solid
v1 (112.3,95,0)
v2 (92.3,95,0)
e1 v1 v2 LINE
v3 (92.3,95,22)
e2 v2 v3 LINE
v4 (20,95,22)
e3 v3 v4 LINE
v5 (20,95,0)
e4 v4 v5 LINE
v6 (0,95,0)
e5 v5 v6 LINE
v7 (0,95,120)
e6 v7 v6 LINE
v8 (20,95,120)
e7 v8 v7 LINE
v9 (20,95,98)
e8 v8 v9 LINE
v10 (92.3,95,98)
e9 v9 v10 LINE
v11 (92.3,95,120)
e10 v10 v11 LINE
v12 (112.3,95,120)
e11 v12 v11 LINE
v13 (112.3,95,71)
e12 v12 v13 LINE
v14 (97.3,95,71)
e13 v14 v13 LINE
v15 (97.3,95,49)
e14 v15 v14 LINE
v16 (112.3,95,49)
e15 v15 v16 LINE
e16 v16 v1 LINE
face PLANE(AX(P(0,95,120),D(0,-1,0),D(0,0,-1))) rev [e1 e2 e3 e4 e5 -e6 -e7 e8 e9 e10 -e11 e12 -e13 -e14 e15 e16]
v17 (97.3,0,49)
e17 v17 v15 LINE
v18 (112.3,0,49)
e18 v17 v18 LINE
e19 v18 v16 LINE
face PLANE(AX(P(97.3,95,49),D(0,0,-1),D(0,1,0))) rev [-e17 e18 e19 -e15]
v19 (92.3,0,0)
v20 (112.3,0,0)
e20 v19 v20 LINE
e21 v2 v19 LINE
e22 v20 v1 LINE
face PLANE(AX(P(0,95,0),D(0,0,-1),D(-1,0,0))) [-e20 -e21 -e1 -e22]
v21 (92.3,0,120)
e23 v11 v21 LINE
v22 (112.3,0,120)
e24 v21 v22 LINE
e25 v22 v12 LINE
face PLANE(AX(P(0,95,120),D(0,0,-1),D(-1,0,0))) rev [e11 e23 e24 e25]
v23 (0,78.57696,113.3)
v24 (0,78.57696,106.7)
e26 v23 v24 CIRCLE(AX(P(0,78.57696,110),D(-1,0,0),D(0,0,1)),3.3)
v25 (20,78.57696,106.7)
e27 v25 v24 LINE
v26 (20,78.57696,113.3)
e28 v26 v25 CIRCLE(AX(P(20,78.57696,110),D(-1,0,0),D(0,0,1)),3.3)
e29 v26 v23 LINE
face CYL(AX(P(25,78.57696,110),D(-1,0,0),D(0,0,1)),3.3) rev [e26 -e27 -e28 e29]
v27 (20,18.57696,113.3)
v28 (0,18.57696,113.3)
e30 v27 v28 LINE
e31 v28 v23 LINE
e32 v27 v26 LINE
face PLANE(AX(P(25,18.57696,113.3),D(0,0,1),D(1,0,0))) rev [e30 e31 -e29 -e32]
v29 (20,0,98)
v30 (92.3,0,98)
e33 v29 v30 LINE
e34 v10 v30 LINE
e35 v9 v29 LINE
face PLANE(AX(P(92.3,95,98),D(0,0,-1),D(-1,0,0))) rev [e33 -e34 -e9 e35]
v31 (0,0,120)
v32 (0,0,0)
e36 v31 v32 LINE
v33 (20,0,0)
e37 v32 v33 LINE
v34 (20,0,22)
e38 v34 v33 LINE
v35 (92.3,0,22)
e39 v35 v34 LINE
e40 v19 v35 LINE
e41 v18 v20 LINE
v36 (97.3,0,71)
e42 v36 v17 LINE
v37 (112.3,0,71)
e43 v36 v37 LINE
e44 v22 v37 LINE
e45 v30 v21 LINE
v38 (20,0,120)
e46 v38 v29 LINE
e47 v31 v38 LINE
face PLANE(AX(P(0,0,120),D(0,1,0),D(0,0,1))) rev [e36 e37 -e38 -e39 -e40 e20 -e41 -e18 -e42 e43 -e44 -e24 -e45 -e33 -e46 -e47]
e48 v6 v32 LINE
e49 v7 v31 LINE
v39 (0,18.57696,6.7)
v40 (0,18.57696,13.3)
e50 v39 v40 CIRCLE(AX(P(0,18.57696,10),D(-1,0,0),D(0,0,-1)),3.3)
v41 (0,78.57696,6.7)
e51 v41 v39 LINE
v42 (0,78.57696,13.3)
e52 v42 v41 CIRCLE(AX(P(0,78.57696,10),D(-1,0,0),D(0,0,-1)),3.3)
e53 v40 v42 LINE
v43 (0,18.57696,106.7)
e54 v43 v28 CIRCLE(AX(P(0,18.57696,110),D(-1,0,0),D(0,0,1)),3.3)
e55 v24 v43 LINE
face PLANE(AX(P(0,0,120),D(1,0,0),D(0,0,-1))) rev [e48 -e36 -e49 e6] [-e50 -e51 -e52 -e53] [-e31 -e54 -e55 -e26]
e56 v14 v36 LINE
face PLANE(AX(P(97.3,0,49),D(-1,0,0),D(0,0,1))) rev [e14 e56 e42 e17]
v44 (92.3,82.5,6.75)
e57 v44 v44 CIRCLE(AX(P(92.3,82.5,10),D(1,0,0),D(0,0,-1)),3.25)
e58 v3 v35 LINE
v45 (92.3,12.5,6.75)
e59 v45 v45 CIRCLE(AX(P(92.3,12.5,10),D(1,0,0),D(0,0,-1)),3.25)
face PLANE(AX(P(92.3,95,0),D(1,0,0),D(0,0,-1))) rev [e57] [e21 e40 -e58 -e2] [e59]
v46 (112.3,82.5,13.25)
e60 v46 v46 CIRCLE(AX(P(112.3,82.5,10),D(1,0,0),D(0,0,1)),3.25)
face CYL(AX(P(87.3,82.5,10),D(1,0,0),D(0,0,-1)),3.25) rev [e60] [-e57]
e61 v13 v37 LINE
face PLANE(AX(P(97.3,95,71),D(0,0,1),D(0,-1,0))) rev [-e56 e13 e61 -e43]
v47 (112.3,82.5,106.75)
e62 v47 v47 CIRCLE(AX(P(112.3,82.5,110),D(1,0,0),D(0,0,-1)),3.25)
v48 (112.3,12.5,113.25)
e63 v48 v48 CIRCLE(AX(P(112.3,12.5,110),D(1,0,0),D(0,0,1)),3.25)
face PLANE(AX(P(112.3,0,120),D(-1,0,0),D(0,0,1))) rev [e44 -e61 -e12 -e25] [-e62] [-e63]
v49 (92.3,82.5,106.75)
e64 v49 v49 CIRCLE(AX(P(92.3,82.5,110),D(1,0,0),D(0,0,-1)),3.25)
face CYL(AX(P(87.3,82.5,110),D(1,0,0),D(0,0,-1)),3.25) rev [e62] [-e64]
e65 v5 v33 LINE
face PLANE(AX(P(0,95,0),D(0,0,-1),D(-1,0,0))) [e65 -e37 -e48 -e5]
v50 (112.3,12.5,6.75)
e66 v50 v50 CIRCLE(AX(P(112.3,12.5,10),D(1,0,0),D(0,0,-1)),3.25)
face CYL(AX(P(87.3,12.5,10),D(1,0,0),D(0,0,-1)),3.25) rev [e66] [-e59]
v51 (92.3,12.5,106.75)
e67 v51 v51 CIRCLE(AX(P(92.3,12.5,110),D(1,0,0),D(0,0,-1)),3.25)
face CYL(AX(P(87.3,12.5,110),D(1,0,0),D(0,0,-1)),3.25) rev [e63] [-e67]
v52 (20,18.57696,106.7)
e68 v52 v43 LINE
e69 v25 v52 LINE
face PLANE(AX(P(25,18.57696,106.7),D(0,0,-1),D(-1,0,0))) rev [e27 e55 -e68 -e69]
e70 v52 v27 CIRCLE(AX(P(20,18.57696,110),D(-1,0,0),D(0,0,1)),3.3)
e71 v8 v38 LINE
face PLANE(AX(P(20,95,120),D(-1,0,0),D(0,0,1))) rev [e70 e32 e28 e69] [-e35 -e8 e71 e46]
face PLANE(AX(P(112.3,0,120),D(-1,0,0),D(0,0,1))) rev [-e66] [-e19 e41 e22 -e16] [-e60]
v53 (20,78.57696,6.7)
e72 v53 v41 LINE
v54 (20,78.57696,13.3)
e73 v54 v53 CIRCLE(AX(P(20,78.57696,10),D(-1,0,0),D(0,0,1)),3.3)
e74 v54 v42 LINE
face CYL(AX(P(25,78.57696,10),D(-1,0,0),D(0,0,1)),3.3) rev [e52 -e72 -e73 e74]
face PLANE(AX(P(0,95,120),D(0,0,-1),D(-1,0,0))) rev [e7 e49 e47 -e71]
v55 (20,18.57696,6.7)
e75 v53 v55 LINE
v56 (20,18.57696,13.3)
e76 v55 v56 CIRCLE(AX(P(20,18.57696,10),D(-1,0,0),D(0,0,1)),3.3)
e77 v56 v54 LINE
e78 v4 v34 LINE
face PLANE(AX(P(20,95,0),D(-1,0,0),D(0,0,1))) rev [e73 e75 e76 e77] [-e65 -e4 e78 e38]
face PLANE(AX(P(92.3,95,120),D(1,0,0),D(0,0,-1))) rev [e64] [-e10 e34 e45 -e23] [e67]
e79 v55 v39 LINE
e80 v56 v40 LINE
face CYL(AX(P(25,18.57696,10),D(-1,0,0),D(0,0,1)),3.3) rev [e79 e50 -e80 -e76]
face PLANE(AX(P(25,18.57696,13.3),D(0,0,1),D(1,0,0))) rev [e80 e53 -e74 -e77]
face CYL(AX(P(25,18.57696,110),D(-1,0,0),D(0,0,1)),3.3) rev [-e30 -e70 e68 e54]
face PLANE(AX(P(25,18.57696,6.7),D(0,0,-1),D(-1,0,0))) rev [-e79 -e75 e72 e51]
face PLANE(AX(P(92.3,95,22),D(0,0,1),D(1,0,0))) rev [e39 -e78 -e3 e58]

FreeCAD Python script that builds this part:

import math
import FreeCAD as App
import Part
import Sketcher
from FreeCAD import Vector
Q = App.Units.Quantity

doc = App.newDocument("Part")
params = doc.addObject("Spreadsheet::Sheet", "Params")
for row, (alias, value) in enumerate([
    ("sketch1_height", "95 mm"),
    ("sketch1_width", "112.3 mm"),
    ("pad1_length", "120 mm"),
    ("sketch2_height", "22 mm"),
    ("sketch2_width", "72.3 mm"),
    ("sketch3_radius", "3.3 mm"),
    ("sketch3_width", "60 mm"),
    ("pocket2_length", "25 mm"),
    ("sketch4_diameter", "6.5 mm"),
    ("pocket3_length", "25 mm"),
    ("sketch5_width", "95 mm"),
    ("sketch5_height", "22 mm"),
    ("pocket4_length", "15 mm"),
], start=1):
    params.set(f"A{row}", alias)
    params.set(f"B{row}", "=" + value)
    params.setAlias(f"B{row}", alias)

body = doc.addObject("PartDesign::Body", "Body")

# Sketch on XY plane
sketch1 = body.newObject("Sketcher::SketchObject", "Sketch")
sketch1.AttachmentSupport = (doc.getObject("XY_Plane"), [""])
sketch1.MapMode = "FlatFace"
sketch1.addGeometry(Part.LineSegment(Vector(0, 95, 0), Vector(0, 0, 0)), False)
sketch1.addGeometry(Part.LineSegment(Vector(0, 0, 0), Vector(112, 0, 0)), False)
sketch1.addGeometry(Part.LineSegment(Vector(112, 0, 0), Vector(112, 95, 0)), False)
sketch1.addGeometry(Part.LineSegment(Vector(112, 95, 0), Vector(0, 95, 0)), False)
sketch1.addConstraint(Sketcher.Constraint("Coincident", 0, 2, 1, 1))
sketch1.addConstraint(Sketcher.Constraint("Coincident", 1, 2, 2, 1))
sketch1.addConstraint(Sketcher.Constraint("Coincident", 2, 2, 3, 1))
sketch1.addConstraint(Sketcher.Constraint("Coincident", 3, 2, 0, 1))
sketch1.addConstraint(Sketcher.Constraint("Vertical", 0))
sketch1.addConstraint(Sketcher.Constraint("Horizontal", 1))
sketch1.addConstraint(Sketcher.Constraint("Vertical", 2))
sketch1.addConstraint(Sketcher.Constraint("Horizontal", 3))
sketch1.addConstraint(Sketcher.Constraint("Coincident", 0, 2, -1, 1))
sketch1.addConstraint(Sketcher.Constraint("DistanceY", 0, 2, 0, 1, Q("95 mm")))
sketch1.addConstraint(Sketcher.Constraint("DistanceX", 1, 1, 1, 2, Q("112.3 mm")))
sketch1.setExpression("Constraints[9]", "Params.sketch1_height")
sketch1.setExpression("Constraints[10]", "Params.sketch1_width")
pad1 = body.newObject("PartDesign::Pad", "Pad")
pad1.Profile = sketch1
pad1.setExpression("Length", "Params.pad1_length")

# Sketch on XZ plane
sketch2 = body.newObject("Sketcher::SketchObject", "Sketch001")
sketch2.AttachmentSupport = (doc.getObject("XZ_Plane"), [""])
sketch2.MapMode = "FlatFace"
sketch2.addGeometry(Part.LineSegment(Vector(20, 120, 0), Vector(20, 98, 0)), False)
sketch2.addGeometry(Part.LineSegment(Vector(20, 98, 0), Vector(92, 98, 0)), False)
sketch2.addGeometry(Part.LineSegment(Vector(92, 98, 0), Vector(92, 120, 0)), False)
sketch2.addGeometry(Part.LineSegment(Vector(92, 120, 0), Vector(20, 120, 0)), False)
sketch2.addGeometry(Part.LineSegment(Vector(20, 22, 0), Vector(20, 0, 0)), False)
sketch2.addGeometry(Part.LineSegment(Vector(20, 0, 0), Vector(92, 0, 0)), False)
sketch2.addGeometry(Part.LineSegment(Vector(92, 0, 0), Vector(92, 22, 0)), False)
sketch2.addGeometry(Part.LineSegment(Vector(92, 22, 0), Vector(20, 22, 0)), False)
sketch2.addConstraint(Sketcher.Constraint("Coincident", 0, 2, 1, 1))
sketch2.addConstraint(Sketcher.Constraint("Coincident", 1, 2, 2, 1))
sketch2.addConstraint(Sketcher.Constraint("Coincident", 2, 2, 3, 1))
sketch2.addConstraint(Sketcher.Constraint("Coincident", 3, 2, 0, 1))
sketch2.addConstraint(Sketcher.Constraint("Coincident", 4, 2, 5, 1))
sketch2.addConstraint(Sketcher.Constraint("Coincident", 5, 2, 6, 1))
sketch2.addConstraint(Sketcher.Constraint("Coincident", 6, 2, 7, 1))
sketch2.addConstraint(Sketcher.Constraint("Coincident", 7, 2, 4, 1))
sketch2.addConstraint(Sketcher.Constraint("Vertical", 0))
sketch2.addConstraint(Sketcher.Constraint("Horizontal", 1))
sketch2.addConstraint(Sketcher.Constraint("Vertical", 2))
sketch2.addConstraint(Sketcher.Constraint("Horizontal", 3))
sketch2.addConstraint(Sketcher.Constraint("Vertical", 4))
sketch2.addConstraint(Sketcher.Constraint("Horizontal", 5))
sketch2.addConstraint(Sketcher.Constraint("Vertical", 6))
sketch2.addConstraint(Sketcher.Constraint("Horizontal", 7))
sketch2.addConstraint(Sketcher.Constraint("PointOnObject", 4, 2, -1))
sketch2.addConstraint(Sketcher.Constraint("Vertical", 3, 2, 4, 2))
sketch2.addConstraint(Sketcher.Constraint("Vertical", 2, 2, 5, 2))
sketch2.addConstraint(Sketcher.Constraint("Equal", 2, 4))
sketch2.addConstraint(Sketcher.Constraint("DistanceY", 0, 2, 0, 1, Q("22 mm")))
sketch2.addConstraint(Sketcher.Constraint("DistanceX", 1, 1, 1, 2, Q("72.3 mm")))
sketch2.addConstraint(Sketcher.Constraint("DistanceX", -1, 1, 0, 2, Q("20 mm")))
sketch2.addConstraint(Sketcher.Constraint("DistanceY", -1, 1, 0, 2, Q("98 mm")))
sketch2.setExpression("Constraints[20]", "Params.sketch2_height")
sketch2.setExpression("Constraints[21]", "Params.sketch2_width")
pocket1 = body.newObject("PartDesign::Pocket", "Pocket")
pocket1.Profile = sketch2
pocket1.Type = "ThroughAll"

# Sketch on YZ plane
sketch3 = body.newObject("Sketcher::SketchObject", "Sketch002")
sketch3.AttachmentSupport = (doc.getObject("YZ_Plane"), [""])
sketch3.MapMode = "FlatFace"
sketch3.addGeometry(Part.LineSegment(Vector(78.6, 106.7, 0), Vector(18.6, 106.7, 0)), False)
sketch3.addGeometry(Part.ArcOfCircle(Part.Circle(Vector(18.6, 110, 0), Vector(0, 0, 1), 3.3), math.radians(90), math.radians(270)), False)
sketch3.addGeometry(Part.LineSegment(Vector(18.6, 113.3, 0), Vector(78.6, 113.3, 0)), False)
sketch3.addGeometry(Part.ArcOfCircle(Part.Circle(Vector(78.6, 110, 0), Vector(0, 0, 1), 3.3), math.radians(-90), math.radians(90)), False)
sketch3.addGeometry(Part.LineSegment(Vector(18.6, 13.3, 0), Vector(78.6, 13.3, 0)), False)
sketch3.addGeometry(Part.ArcOfCircle(Part.Circle(Vector(78.6, 10, 0), Vector(0, 0, 1), 3.3), math.radians(-90), math.radians(90)), False)
sketch3.addGeometry(Part.LineSegment(Vector(78.6, 6.7, 0), Vector(18.6, 6.7, 0)), False)
sketch3.addGeometry(Part.ArcOfCircle(Part.Circle(Vector(18.6, 10, 0), Vector(0, 0, 1), 3.3), math.radians(90), math.radians(270)), False)
sketch3.addConstraint(Sketcher.Constraint("Tangent", 0, 2, 1, 2))
sketch3.addConstraint(Sketcher.Constraint("Tangent", 1, 1, 2, 1))
sketch3.addConstraint(Sketcher.Constraint("Tangent", 2, 2, 3, 2))
sketch3.addConstraint(Sketcher.Constraint("Tangent", 3, 1, 0, 1))
sketch3.addConstraint(Sketcher.Constraint("Tangent", 4, 2, 5, 2))
sketch3.addConstraint(Sketcher.Constraint("Tangent", 5, 1, 6, 1))
sketch3.addConstraint(Sketcher.Constraint("Tangent", 6, 2, 7, 2))
sketch3.addConstraint(Sketcher.Constraint("Tangent", 7, 1, 4, 1))
sketch3.addConstraint(Sketcher.Constraint("Horizontal", 0))
sketch3.addConstraint(Sketcher.Constraint("Horizontal", 2))
sketch3.addConstraint(Sketcher.Constraint("Horizontal", 4))
sketch3.addConstraint(Sketcher.Constraint("Horizontal", 6))
sketch3.addConstraint(Sketcher.Constraint("Equal", 3, 5))
sketch3.addConstraint(Sketcher.Constraint("Vertical", 3, 3, 5, 3))
sketch3.addConstraint(Sketcher.Constraint("Vertical", 1, 3, 7, 3))
sketch3.addConstraint(Sketcher.Constraint("Radius", 1, Q("3.3 mm")))
sketch3.addConstraint(Sketcher.Constraint("DistanceX", 0, 2, 0, 1, Q("60 mm")))
sketch3.addConstraint(Sketcher.Constraint("DistanceY", -1, 1, 1, 3, Q("110 mm")))
sketch3.addConstraint(Sketcher.Constraint("DistanceY", -1, 1, 5, 3, Q("10 mm")))
sketch3.addConstraint(Sketcher.Constraint("DistanceX", -1, 1, 1, 3, Q("18.57696 mm")))
sketch3.setExpression("Constraints[15]", "Params.sketch3_radius")
sketch3.setExpression("Constraints[16]", "Params.sketch3_width")
pocket2 = body.newObject("PartDesign::Pocket", "Pocket001")
pocket2.Profile = sketch3
pocket2.setExpression("Length", "Params.pocket2_length")
pocket2.Reversed = True

# Sketch on YZ plane
sketch4 = body.newObject("Sketcher::SketchObject", "Sketch003")
sketch4.AttachmentSupport = (doc.getObject("YZ_Plane"), [""])
sketch4.MapMode = "FlatFace"
sketch4.AttachmentOffset = App.Placement(Vector(0, 0, 112.3), App.Rotation())
sketch4.addGeometry(Part.Circle(Vector(82.5, 110, 0), Vector(0, 0, 1), 3.2), False)
sketch4.addGeometry(Part.Circle(Vector(82.5, 10, 0), Vector(0, 0, 1), 3.2), False)
sketch4.addGeometry(Part.Circle(Vector(12.5, 10, 0), Vector(0, 0, 1), 3.2), False)
sketch4.addGeometry(Part.Circle(Vector(12.5, 110, 0), Vector(0, 0, 1), 3.2), False)
sketch4.addConstraint(Sketcher.Constraint("Equal", 0, 1))
sketch4.addConstraint(Sketcher.Constraint("Equal", 1, 2))
sketch4.addConstraint(Sketcher.Constraint("Equal", 2, 3))
sketch4.addConstraint(Sketcher.Constraint("Horizontal", 1, 3, 2, 3))
sketch4.addConstraint(Sketcher.Constraint("Horizontal", 0, 3, 3, 3))
sketch4.addConstraint(Sketcher.Constraint("Vertical", 0, 3, 1, 3))
sketch4.addConstraint(Sketcher.Constraint("Vertical", 2, 3, 3, 3))
sketch4.addConstraint(Sketcher.Constraint("Diameter", 0, Q("6.5 mm")))
sketch4.addConstraint(Sketcher.Constraint("DistanceY", -1, 1, 0, 3, Q("110 mm")))
sketch4.addConstraint(Sketcher.Constraint("DistanceY", -1, 1, 1, 3, Q("10 mm")))
sketch4.addConstraint(Sketcher.Constraint("DistanceX", 2, 3, 1, 3, Q("70 mm")))
sketch4.addConstraint(Sketcher.Constraint("DistanceX", -1, 1, 0, 3, Q("82.5 mm")))
sketch4.setExpression("Constraints[7]", "Params.sketch4_diameter")
pocket3 = body.newObject("PartDesign::Pocket", "Pocket002")
pocket3.Profile = sketch4
pocket3.setExpression("Length", "Params.pocket3_length")

# Sketch on YZ plane
sketch5 = body.newObject("Sketcher::SketchObject", "Sketch004")
sketch5.AttachmentSupport = (doc.getObject("YZ_Plane"), [""])
sketch5.MapMode = "FlatFace"
sketch5.AttachmentOffset = App.Placement(Vector(0, 0, 112.3), App.Rotation())
sketch5.addGeometry(Part.LineSegment(Vector(95, 71, 0), Vector(0, 71, 0)), False)
sketch5.addGeometry(Part.LineSegment(Vector(0, 71, 0), Vector(0, 49, 0)), False)
sketch5.addGeometry(Part.LineSegment(Vector(0, 49, 0), Vector(95, 49, 0)), False)
sketch5.addGeometry(Part.LineSegment(Vector(95, 49, 0), Vector(95, 71, 0)), False)
sketch5.addConstraint(Sketcher.Constraint("Coincident", 0, 2, 1, 1))
sketch5.addConstraint(Sketcher.Constraint("Coincident", 1, 2, 2, 1))
sketch5.addConstraint(Sketcher.Constraint("Coincident", 2, 2, 3, 1))
sketch5.addConstraint(Sketcher.Constraint("Coincident", 3, 2, 0, 1))
sketch5.addConstraint(Sketcher.Constraint("Horizontal", 0))
sketch5.addConstraint(Sketcher.Constraint("Vertical", 1))
sketch5.addConstraint(Sketcher.Constraint("Horizontal", 2))
sketch5.addConstraint(Sketcher.Constraint("Vertical", 3))
sketch5.addConstraint(Sketcher.Constraint("PointOnObject", 0, 2, -2))
sketch5.addConstraint(Sketcher.Constraint("DistanceX", 0, 2, 0, 1, Q("95 mm")))
sketch5.addConstraint(Sketcher.Constraint("DistanceY", 1, 2, 1, 1, Q("22 mm")))
sketch5.addConstraint(Sketcher.Constraint("DistanceY", -1, 1, 0, 2, Q("71 mm")))
sketch5.setExpression("Constraints[9]", "Params.sketch5_width")
sketch5.setExpression("Constraints[10]", "Params.sketch5_height")
pocket4 = body.newObject("PartDesign::Pocket", "Pocket003")
pocket4.Profile = sketch5
pocket4.setExpression("Length", "Params.pocket4_length")

doc.recompute()
